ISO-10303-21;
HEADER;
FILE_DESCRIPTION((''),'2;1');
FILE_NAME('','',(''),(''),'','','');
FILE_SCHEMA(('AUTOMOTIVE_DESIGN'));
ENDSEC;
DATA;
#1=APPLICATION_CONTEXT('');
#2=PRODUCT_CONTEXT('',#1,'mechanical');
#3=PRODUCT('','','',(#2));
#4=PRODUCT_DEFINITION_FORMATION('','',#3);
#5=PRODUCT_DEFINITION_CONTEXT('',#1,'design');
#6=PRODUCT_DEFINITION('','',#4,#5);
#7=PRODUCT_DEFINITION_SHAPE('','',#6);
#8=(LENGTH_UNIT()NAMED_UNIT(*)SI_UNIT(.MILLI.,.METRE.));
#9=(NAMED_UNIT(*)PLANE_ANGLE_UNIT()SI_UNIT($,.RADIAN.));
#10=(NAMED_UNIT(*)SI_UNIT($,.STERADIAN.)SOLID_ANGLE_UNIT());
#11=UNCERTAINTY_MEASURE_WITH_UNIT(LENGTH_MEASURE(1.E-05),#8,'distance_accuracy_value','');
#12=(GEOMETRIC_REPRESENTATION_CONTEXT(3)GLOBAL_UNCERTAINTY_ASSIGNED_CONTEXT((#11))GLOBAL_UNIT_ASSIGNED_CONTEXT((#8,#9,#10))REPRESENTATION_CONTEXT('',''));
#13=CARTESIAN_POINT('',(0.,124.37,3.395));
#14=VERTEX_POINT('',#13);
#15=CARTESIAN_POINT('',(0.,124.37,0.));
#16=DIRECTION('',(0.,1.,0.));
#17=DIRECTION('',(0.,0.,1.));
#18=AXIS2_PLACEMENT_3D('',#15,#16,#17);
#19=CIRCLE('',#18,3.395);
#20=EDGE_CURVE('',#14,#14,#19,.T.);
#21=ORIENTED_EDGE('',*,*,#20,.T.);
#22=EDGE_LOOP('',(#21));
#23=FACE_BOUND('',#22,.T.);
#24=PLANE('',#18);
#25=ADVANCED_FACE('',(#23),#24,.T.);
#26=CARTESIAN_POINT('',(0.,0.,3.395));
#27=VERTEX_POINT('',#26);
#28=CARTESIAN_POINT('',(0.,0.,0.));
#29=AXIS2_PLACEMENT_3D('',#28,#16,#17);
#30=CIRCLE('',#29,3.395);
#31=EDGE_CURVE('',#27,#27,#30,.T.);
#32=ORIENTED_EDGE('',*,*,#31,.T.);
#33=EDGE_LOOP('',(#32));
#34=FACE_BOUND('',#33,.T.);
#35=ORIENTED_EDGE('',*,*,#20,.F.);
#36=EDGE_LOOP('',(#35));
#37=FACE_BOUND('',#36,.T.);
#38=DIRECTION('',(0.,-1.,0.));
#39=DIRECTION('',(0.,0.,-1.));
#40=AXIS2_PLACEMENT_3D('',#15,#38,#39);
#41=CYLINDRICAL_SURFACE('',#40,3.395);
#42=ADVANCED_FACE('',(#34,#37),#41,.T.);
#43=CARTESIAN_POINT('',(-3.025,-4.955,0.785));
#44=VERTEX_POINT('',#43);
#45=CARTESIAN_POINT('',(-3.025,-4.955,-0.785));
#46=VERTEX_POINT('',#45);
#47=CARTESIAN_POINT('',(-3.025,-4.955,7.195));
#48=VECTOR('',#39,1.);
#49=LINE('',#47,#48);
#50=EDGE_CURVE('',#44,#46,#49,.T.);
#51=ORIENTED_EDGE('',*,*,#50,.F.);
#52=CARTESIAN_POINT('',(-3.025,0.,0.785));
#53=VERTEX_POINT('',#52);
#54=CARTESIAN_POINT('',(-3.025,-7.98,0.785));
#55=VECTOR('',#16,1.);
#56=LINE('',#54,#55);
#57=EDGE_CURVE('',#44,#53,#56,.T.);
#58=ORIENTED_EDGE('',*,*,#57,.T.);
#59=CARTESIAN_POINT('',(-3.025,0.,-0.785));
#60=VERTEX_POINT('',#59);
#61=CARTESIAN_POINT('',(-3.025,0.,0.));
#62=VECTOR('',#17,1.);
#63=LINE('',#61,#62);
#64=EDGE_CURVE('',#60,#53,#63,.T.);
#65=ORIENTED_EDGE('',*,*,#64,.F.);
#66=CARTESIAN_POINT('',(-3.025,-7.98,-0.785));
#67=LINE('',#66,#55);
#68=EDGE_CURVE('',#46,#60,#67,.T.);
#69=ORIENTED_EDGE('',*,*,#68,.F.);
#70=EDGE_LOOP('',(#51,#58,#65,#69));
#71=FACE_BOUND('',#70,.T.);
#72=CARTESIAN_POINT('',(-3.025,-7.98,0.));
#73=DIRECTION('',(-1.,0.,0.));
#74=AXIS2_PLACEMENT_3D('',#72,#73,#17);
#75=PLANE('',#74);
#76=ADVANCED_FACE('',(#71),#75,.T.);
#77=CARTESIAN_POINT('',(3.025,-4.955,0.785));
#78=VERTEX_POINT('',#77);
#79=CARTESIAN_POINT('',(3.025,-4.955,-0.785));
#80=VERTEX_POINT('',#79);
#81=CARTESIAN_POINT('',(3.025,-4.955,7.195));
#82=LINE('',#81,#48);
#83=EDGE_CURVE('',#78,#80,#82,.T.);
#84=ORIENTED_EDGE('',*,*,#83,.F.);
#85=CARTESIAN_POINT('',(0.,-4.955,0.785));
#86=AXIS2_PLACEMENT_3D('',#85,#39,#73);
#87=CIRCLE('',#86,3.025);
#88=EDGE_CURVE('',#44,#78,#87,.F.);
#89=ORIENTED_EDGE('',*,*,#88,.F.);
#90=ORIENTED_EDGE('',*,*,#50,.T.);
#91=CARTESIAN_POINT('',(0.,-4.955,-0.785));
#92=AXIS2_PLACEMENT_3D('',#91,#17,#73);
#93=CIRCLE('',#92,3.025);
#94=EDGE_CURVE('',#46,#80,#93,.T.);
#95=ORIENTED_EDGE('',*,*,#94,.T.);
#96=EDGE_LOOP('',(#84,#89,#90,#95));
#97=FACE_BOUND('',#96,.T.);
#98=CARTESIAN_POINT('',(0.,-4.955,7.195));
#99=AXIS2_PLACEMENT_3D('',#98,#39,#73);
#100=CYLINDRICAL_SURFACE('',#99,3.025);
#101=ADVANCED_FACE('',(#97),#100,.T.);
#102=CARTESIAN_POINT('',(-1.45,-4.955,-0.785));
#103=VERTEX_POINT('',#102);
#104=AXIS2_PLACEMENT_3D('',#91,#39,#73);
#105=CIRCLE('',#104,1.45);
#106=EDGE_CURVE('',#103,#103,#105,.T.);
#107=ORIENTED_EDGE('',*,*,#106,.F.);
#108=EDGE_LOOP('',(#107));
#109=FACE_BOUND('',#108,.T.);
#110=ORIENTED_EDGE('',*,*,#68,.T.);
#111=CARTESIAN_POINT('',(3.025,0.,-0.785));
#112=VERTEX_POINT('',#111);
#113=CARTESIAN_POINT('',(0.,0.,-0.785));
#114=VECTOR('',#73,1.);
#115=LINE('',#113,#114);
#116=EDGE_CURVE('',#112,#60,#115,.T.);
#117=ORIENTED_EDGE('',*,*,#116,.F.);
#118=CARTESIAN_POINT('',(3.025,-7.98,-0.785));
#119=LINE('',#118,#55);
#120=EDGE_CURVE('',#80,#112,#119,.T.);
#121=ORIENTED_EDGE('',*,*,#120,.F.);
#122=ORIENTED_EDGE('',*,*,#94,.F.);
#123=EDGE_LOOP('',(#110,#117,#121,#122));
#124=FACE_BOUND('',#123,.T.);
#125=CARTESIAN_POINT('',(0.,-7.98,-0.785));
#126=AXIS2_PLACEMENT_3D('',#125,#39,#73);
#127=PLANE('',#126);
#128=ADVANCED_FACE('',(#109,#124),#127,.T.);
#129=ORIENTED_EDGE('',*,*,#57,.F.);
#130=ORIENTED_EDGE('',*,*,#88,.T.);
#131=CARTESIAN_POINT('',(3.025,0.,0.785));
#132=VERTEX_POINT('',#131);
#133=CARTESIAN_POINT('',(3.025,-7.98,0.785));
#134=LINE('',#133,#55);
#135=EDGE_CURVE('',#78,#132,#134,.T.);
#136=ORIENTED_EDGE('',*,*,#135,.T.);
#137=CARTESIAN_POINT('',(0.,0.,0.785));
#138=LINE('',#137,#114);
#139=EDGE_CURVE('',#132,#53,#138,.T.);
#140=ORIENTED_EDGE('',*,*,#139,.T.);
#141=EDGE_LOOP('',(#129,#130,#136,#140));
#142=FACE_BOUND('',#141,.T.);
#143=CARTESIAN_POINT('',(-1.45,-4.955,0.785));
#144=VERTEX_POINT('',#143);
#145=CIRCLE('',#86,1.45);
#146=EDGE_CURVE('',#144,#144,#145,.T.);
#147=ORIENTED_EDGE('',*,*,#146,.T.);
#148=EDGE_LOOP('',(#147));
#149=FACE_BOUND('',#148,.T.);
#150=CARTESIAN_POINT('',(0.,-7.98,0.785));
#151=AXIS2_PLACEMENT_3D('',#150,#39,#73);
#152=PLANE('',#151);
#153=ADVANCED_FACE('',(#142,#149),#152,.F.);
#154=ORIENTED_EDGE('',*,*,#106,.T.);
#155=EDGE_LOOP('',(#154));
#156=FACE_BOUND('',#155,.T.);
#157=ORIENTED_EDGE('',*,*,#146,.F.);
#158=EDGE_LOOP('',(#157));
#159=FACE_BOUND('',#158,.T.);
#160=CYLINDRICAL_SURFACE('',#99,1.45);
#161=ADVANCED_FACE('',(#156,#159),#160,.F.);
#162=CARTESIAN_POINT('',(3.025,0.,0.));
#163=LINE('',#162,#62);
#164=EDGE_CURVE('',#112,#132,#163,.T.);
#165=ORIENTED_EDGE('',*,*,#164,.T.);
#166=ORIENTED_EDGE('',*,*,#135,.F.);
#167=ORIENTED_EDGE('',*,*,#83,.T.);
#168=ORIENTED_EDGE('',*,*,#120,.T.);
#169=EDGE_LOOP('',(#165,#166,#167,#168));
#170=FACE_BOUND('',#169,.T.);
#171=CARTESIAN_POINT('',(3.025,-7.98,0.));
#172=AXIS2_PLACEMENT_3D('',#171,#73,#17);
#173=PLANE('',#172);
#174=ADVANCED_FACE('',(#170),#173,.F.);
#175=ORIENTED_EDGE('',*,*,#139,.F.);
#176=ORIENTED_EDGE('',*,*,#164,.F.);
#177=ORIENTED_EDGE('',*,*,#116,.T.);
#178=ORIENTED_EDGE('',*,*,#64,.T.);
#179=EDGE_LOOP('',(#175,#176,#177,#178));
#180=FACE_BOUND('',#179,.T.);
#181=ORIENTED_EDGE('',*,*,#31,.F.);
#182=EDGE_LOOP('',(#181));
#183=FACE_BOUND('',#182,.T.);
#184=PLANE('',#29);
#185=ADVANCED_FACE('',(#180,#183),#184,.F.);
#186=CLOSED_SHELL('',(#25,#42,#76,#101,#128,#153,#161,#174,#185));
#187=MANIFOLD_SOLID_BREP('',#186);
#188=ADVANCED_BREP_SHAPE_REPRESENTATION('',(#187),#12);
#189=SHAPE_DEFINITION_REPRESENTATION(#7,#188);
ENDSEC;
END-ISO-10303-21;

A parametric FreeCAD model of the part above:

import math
import FreeCAD as App
import Part
import Sketcher
Q = App.Units.Quantity


def add_polygon(sketch, points):
    """Adds a closed chain of lines whose ends are joined by coincident constraints."""
    first, n = sketch.GeometryCount, len(points)
    for a, b in zip(points, points[1:] + points[:1]):
        sketch.addGeometry(Part.LineSegment(App.Vector(*a, 0), App.Vector(*b, 0)), False)
    for i in range(n):
        sketch.addConstraint(Sketcher.Constraint("Coincident", first + i, 2, first + (i + 1) % n, 1))

doc = App.newDocument("Part")
body = doc.addObject("PartDesign::Body", "Body")

# Sketch on XZ plane
sketch1 = body.newObject("Sketcher::SketchObject", "Sketch")
sketch1.AttachmentSupport = (doc.getObject("XZ_Plane"), [""])
sketch1.MapMode = "FlatFace"
sketch1.addGeometry(Part.Circle(App.Vector(0, 0, 0), App.Vector(0, 0, 1), 3.4), False)
sketch1.addConstraint(Sketcher.Constraint("Coincident", 0, 3, -1, 1))
sketch1.addConstraint(Sketcher.Constraint("Diameter", 0, Q("6.79 mm")))
pad1 = body.newObject("PartDesign::Pad", "Pad")
pad1.Profile = sketch1
pad1.Length = 124.37
pad1.Reversed = True

# Sketch on XZ plane
sketch2 = body.newObject("Sketcher::SketchObject", "Sketch001")
sketch2.AttachmentSupport = (doc.getObject("XZ_Plane"), [""])
sketch2.MapMode = "FlatFace"
add_polygon(sketch2, [(-3, -0.8), (-3, 0.8), (3, 0.8), (3, -0.8)])  # lines 0-3
sketch2.addConstraint(Sketcher.Constraint("Vertical", 0))
sketch2.addConstraint(Sketcher.Constraint("Horizontal", 1))
sketch2.addConstraint(Sketcher.Constraint("Vertical", 2))
sketch2.addConstraint(Sketcher.Constraint("Horizontal", 3))
sketch2.addConstraint(Sketcher.Constraint("Symmetric", 0, 2, 2, 2, -1, 1))
sketch2.addConstraint(Sketcher.Constraint("DistanceX", 1, 1, 1, 2, Q("6.05 mm")))
sketch2.addConstraint(Sketcher.Constraint("DistanceY", 0, 1, 0, 2, Q("1.57 mm")))
pad2 = body.newObject("PartDesign::Pad", "Pad001")
pad2.Profile = sketch2
pad2.Length = 7.98

# Sketch on XY plane
sketch3 = body.newObject("Sketcher::SketchObject", "Sketch002")
sketch3.AttachmentSupport = (doc.getObject("XY_Plane"), [""])
sketch3.MapMode = "FlatFace"
sketch3.AttachmentOffset = App.Placement(App.Vector(0, 0, -0.785), App.Rotation())
sketch3.addGeometry(Part.LineSegment(App.Vector(3, -5, 0), App.Vector(5.6, -5, 0)), False)
sketch3.addGeometry(Part.LineSegment(App.Vector(5.6, -5, 0), App.Vector(3.4, -8.8, 0)), False)
sketch3.addGeometry(Part.LineSegment(App.Vector(3.4, -8.8, 0), App.Vector(-5, -9.5, 0)), False)
sketch3.addGeometry(Part.LineSegment(App.Vector(-5, -9.5, 0), App.Vector(-4.9, -5, 0)), False)
sketch3.addGeometry(Part.LineSegment(App.Vector(-4.9, -5, 0), App.Vector(-3, -5, 0)), False)
sketch3.addGeometry(Part.ArcOfCircle(Part.Circle(App.Vector(0, -5, 0), App.Vector(0, 0, 1), 3), math.radians(180), math.radians(360)), False)
sketch3.addConstraint(Sketcher.Constraint("Coincident", 0, 2, 1, 1))
sketch3.addConstraint(Sketcher.Constraint("Coincident", 1, 2, 2, 1))
sketch3.addConstraint(Sketcher.Constraint("Coincident", 2, 2, 3, 1))
sketch3.addConstraint(Sketcher.Constraint("Coincident", 3, 2, 4, 1))
sketch3.addConstraint(Sketcher.Constraint("Coincident", 4, 2, 5, 1))
sketch3.addConstraint(Sketcher.Constraint("Coincident", 5, 2, 0, 1))
sketch3.addConstraint(Sketcher.Constraint("Horizontal", 0))
sketch3.addConstraint(Sketcher.Constraint("Horizontal", 4))
sketch3.addConstraint(Sketcher.Constraint("Symmetric", 4, 2, 5, 2, -2))
sketch3.addConstraint(Sketcher.Constraint("Horizontal", 5, 3, 0, 2))
sketch3.addConstraint(Sketcher.Constraint("Radius", 5, Q("3.025 mm")))
sketch3.addConstraint(Sketcher.Constraint("DistanceY", 5, 3, -1, 1, Q("4.955 mm")))
sketch3.addConstraint(Sketcher.Constraint("DistanceX", -1, 1, 1, 2, Q("3.356299 mm")))
sketch3.addConstraint(Sketcher.Constraint("Distance", 3, Q("4.578109 mm")))
sketch3.addConstraint(Sketcher.Constraint("DistanceX", 0, 1, 0, 2, Q("2.526254 mm")))
sketch3.addConstraint(Sketcher.Constraint("DistanceX", 4, 1, 4, 2, Q("1.861236 mm")))
sketch3.addConstraint(Sketcher.Constraint("DistanceY", 1, 2, -1, 1, Q("8.834089 mm")))
sketch3.addConstraint(Sketcher.Constraint("DistanceX", 2, 2, 0, 2, Q("10.53846 mm")))
pocket1 = body.newObject("PartDesign::Pocket", "Pocket")
pocket1.Profile = sketch3
pocket1.Length = 7.98
pocket1.Reversed = True

# Sketch on XY plane
sketch4 = body.newObject("Sketcher::SketchObject", "Sketch003")
sketch4.AttachmentSupport = (doc.getObject("XY_Plane"), [""])
sketch4.MapMode = "FlatFace"
sketch4.AttachmentOffset = App.Placement(App.Vector(0, 0, -0.785), App.Rotation())
sketch4.addGeometry(Part.Circle(App.Vector(0, -5, 0), App.Vector(0, 0, 1), 1.4), False)
sketch4.addConstraint(Sketcher.Constraint("PointOnObject", 0, 3, -2))
sketch4.addConstraint(Sketcher.Constraint("Diameter", 0, Q("2.9 mm")))
sketch4.addConstraint(Sketcher.Constraint("DistanceY", 0, 3, -1, 1, Q("4.955 mm")))
pocket2 = body.newObject("PartDesign::Pocket", "Pocket001")
pocket2.Profile = sketch4
pocket2.Length = 7.98
pocket2.Reversed = True

doc.recompute()
